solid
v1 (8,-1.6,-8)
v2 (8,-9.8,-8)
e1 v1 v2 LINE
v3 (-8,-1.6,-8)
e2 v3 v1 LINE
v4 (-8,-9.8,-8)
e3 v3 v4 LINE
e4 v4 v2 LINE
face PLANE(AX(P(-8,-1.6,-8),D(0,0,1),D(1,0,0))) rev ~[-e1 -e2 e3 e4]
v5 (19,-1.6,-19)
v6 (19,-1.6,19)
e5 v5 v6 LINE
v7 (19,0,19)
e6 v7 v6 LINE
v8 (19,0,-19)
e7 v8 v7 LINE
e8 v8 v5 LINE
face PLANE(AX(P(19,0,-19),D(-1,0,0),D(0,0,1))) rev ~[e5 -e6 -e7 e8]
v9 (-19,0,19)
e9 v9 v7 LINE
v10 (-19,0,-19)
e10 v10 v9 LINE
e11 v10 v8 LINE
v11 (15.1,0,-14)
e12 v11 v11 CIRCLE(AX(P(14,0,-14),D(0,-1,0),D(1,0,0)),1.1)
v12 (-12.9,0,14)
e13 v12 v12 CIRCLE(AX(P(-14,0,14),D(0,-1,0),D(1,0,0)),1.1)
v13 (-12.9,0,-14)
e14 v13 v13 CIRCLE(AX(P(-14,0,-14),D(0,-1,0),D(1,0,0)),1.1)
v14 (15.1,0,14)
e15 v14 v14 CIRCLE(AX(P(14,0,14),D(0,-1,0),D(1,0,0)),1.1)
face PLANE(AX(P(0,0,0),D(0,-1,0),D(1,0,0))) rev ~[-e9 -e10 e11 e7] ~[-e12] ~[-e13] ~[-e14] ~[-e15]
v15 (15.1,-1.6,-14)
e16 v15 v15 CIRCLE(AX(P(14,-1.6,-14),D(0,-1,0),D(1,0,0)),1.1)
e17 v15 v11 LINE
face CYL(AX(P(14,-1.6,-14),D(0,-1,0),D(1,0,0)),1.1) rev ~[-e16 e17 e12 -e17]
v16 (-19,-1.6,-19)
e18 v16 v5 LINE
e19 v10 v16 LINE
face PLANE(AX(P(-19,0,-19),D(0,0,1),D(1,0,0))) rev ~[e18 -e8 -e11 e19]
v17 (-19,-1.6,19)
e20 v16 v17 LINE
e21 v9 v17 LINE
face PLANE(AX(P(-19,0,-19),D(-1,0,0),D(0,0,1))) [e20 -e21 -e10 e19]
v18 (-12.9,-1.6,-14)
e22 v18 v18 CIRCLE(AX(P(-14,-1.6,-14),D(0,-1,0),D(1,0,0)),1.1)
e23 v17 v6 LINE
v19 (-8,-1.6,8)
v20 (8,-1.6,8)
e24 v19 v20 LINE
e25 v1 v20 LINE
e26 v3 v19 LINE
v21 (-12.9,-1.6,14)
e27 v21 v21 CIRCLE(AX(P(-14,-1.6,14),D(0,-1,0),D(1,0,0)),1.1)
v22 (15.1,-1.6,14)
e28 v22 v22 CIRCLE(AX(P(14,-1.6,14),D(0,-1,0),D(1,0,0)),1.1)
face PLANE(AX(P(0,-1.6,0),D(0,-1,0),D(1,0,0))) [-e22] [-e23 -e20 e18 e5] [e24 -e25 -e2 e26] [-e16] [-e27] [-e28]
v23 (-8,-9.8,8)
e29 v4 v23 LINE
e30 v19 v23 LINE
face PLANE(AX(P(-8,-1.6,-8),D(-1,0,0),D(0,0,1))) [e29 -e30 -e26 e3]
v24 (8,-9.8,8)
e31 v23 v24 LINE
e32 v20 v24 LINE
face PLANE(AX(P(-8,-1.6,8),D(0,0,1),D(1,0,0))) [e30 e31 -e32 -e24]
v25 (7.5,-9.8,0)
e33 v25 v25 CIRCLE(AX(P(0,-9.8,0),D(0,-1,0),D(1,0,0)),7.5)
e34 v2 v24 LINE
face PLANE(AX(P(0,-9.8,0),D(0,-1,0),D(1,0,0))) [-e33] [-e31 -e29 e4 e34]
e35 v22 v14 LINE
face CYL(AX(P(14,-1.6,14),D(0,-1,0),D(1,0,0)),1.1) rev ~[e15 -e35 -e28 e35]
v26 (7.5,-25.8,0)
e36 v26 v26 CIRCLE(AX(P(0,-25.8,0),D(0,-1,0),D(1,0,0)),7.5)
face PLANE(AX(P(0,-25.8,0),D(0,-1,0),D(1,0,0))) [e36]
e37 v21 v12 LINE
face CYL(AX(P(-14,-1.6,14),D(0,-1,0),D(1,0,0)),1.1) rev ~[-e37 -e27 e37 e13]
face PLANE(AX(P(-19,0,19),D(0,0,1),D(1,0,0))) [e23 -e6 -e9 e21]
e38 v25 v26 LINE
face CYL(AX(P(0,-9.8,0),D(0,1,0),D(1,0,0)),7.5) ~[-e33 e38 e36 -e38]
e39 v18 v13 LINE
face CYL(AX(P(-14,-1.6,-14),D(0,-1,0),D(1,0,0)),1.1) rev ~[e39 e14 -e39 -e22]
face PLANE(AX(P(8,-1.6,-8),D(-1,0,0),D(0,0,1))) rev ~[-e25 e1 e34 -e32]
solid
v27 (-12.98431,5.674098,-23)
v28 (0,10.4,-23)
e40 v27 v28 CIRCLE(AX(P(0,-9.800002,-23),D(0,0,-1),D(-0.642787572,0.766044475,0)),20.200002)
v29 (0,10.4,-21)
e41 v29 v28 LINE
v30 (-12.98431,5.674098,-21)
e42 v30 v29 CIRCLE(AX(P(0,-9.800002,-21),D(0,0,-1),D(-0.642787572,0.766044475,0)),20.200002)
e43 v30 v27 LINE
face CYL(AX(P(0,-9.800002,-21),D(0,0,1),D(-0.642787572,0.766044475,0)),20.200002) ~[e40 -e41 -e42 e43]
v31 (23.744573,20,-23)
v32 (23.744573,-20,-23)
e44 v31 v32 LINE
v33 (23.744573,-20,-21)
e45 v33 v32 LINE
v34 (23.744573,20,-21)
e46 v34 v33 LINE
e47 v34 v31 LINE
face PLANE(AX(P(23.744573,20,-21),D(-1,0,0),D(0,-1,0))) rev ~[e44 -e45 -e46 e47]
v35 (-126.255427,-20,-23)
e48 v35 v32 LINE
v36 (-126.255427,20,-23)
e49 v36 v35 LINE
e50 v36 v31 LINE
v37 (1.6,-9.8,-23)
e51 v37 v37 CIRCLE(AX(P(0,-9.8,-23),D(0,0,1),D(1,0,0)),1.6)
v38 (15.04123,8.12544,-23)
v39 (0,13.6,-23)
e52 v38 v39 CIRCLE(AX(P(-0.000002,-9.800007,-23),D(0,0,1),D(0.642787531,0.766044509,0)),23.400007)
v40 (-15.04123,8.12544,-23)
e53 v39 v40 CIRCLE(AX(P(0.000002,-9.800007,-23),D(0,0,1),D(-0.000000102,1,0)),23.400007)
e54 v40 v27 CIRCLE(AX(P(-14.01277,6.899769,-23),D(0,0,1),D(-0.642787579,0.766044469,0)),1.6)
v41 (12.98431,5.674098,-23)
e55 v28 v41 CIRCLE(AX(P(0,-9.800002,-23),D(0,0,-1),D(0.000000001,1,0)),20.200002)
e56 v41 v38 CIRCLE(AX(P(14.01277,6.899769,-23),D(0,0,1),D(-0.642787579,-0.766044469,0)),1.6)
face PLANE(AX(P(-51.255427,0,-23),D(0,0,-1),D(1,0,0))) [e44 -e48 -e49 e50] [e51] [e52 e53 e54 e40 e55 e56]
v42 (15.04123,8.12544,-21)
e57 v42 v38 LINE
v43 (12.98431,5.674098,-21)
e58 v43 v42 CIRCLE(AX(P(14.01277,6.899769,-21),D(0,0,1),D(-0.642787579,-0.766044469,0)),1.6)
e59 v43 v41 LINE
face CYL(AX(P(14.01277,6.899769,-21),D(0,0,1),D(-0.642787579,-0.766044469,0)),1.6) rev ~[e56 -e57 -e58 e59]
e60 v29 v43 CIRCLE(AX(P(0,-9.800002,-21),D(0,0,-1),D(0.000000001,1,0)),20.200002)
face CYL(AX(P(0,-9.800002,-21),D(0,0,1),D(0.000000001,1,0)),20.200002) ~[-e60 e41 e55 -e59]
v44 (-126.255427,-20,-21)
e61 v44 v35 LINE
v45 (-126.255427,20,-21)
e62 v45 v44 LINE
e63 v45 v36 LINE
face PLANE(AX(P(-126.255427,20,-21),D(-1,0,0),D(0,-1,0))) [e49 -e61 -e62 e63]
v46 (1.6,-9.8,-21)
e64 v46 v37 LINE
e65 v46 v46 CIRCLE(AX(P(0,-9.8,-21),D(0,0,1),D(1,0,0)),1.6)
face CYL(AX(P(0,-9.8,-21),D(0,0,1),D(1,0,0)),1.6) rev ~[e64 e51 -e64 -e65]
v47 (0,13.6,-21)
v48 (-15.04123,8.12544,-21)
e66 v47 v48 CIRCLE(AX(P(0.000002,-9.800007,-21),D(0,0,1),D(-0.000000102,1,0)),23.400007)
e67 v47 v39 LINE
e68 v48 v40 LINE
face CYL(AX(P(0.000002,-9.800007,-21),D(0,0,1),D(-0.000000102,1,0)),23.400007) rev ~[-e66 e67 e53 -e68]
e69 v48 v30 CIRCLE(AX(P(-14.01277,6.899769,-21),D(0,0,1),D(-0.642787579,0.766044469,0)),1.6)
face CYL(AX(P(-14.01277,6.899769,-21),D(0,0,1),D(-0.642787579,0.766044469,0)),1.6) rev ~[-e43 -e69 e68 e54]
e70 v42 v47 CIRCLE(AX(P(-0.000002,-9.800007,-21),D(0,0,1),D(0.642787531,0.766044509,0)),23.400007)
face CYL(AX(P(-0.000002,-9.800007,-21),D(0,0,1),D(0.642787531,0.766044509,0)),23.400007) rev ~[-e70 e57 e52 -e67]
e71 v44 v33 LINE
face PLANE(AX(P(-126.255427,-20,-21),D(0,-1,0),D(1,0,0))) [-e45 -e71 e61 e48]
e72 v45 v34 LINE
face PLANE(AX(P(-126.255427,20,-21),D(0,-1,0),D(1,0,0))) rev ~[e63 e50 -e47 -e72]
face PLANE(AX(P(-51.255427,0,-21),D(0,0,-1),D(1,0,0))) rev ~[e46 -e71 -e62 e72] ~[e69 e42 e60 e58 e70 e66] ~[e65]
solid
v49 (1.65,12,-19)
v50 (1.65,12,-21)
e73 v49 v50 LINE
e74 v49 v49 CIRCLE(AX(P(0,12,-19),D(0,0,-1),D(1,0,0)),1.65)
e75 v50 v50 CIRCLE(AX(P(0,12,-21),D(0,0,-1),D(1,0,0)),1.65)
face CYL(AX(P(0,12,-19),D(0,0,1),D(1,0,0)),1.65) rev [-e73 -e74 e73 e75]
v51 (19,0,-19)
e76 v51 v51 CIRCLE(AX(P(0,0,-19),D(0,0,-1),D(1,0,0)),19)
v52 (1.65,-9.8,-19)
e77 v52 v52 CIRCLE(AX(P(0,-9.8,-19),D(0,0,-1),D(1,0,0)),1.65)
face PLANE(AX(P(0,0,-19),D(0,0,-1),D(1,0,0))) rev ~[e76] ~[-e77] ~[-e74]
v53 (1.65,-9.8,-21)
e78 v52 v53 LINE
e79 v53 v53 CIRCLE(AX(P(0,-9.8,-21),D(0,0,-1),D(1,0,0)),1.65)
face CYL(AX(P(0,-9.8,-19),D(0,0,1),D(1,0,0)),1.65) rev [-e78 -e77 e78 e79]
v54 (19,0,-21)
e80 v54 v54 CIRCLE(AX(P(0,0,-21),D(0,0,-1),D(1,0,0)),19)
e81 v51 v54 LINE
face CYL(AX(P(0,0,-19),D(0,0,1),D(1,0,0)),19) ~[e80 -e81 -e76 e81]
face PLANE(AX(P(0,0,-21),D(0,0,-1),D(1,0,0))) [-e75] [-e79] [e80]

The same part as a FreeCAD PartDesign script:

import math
import FreeCAD as App
import Part
import Sketcher
Q = App.Units.Quantity


def add_polygon(sketch, points):
    """Adds a closed chain of lines whose ends are joined by coincident constraints."""
    first, n = sketch.GeometryCount, len(points)
    for a, b in zip(points, points[1:] + points[:1]):
        sketch.addGeometry(Part.LineSegment(App.Vector(*a, 0), App.Vector(*b, 0)), False)
    for i in range(n):
        sketch.addConstraint(Sketcher.Constraint("Coincident", first + i, 2, first + (i + 1) % n, 1))

doc = App.newDocument("Part")
body = doc.addObject("PartDesign::Body", "Body")

sketch1 = doc.addObject("Sketcher::SketchObject", "Sketch")
body.addObject(sketch1)
sketch1.AttachmentSupport = (doc.XZ_Plane, [""])
sketch1.MapMode = "FlatFace"
add_polygon(sketch1, [(-19, 19), (-19, -19), (19, -19), (19, 19)])
sketch1.addConstraint(Sketcher.Constraint("Vertical", 0))
sketch1.addConstraint(Sketcher.Constraint("Horizontal", 1))
sketch1.addConstraint(Sketcher.Constraint("Vertical", 2))
sketch1.addConstraint(Sketcher.Constraint("Horizontal", 3))
sketch1.addConstraint(Sketcher.Constraint("Symmetric", 0, 2, 2, 2, -1, 1))
sketch1.addConstraint(Sketcher.Constraint("Equal", 3, 0))
sketch1.addConstraint(Sketcher.Constraint("DistanceX", 1, 1, 1, 2, Q("38 mm")))
pad1 = doc.addObject("PartDesign::Pad", "Pad")
body.addObject(pad1)
pad1.Profile = sketch1
pad1.Length = 1.6

sketch2 = doc.addObject("Sketcher::SketchObject", "Sketch001")
body.addObject(sketch2)
sketch2.AttachmentSupport = (doc.XZ_Plane, [""])
sketch2.MapMode = "FlatFace"
sketch2.AttachmentOffset = App.Placement(App.Vector(0, 0, 1.6), App.Rotation())
sketch2.addGeometry(Part.Circle(App.Vector(-14, 14, 0), App.Vector(0, 0, 1), 1.1), False)
sketch2.addGeometry(Part.Circle(App.Vector(14, 14, 0), App.Vector(0, 0, 1), 1.1), False)
sketch2.addGeometry(Part.Circle(App.Vector(-14, -14, 0), App.Vector(0, 0, 1), 1.1), False)
sketch2.addGeometry(Part.Circle(App.Vector(14, -14, 0), App.Vector(0, 0, 1), 1.1), False)
sketch2.addConstraint(Sketcher.Constraint("Equal", 0, 1))
sketch2.addConstraint(Sketcher.Constraint("Equal", 1, 2))
sketch2.addConstraint(Sketcher.Constraint("Equal", 2, 3))
sketch2.addConstraint(Sketcher.Constraint("Symmetric", 1, 3, 2, 3, -1, 1))
sketch2.addConstraint(Sketcher.Constraint("Symmetric", 0, 3, 3, 3, -1, 1))
sketch2.addConstraint(Sketcher.Constraint("Symmetric", 0, 3, 1, 3, -2))
sketch2.addConstraint(Sketcher.Constraint("Diameter", 0, Q("2.2 mm")))
sketch2.addConstraint(Sketcher.Constraint("DistanceX", 0, 3, -1, 1, Q("14 mm")))
sketch2.addConstraint(Sketcher.Constraint("DistanceY", -1, 1, 0, 3, Q("14 mm")))
pocket1 = doc.addObject("PartDesign::Pocket", "Pocket")
body.addObject(pocket1)
pocket1.Profile = sketch2
pocket1.Type = "ThroughAll"

sketch3 = doc.addObject("Sketcher::SketchObject", "Sketch002")
body.addObject(sketch3)
sketch3.AttachmentSupport = (doc.XZ_Plane, [""])
sketch3.MapMode = "FlatFace"
sketch3.AttachmentOffset = App.Placement(App.Vector(0, 0, 1.6), App.Rotation())
add_polygon(sketch3, [(-8, 8), (-8, -8), (8, -8), (8, 8)])
sketch3.addConstraint(Sketcher.Constraint("Vertical", 0))
sketch3.addConstraint(Sketcher.Constraint("Horizontal", 1))
sketch3.addConstraint(Sketcher.Constraint("Vertical", 2))
sketch3.addConstraint(Sketcher.Constraint("Horizontal", 3))
sketch3.addConstraint(Sketcher.Constraint("Symmetric", 0, 2, 2, 2, -1, 1))
sketch3.addConstraint(Sketcher.Constraint("Equal", 3, 0))
sketch3.addConstraint(Sketcher.Constraint("DistanceX", 1, 1, 1, 2, Q("16 mm")))
pad2 = doc.addObject("PartDesign::Pad", "Pad001")
body.addObject(pad2)
pad2.Profile = sketch3
pad2.Length = 8.2

sketch4 = doc.addObject("Sketcher::SketchObject", "Sketch003")
body.addObject(sketch4)
sketch4.AttachmentSupport = (doc.XZ_Plane, [""])
sketch4.MapMode = "FlatFace"
sketch4.AttachmentOffset = App.Placement(App.Vector(0, 0, 9.8), App.Rotation())
sketch4.addGeometry(Part.Circle(App.Vector(0, 0, 0), App.Vector(0, 0, 1), 8), False)
sketch4.addConstraint(Sketcher.Constraint("Coincident", 0, 3, -1, 1))
sketch4.addConstraint(Sketcher.Constraint("Diameter", 0, Q("15 mm")))
pad3 = doc.addObject("PartDesign::Pad", "Pad002")
body.addObject(pad3)
pad3.Profile = sketch4
pad3.Length = 16
body2 = doc.addObject("PartDesign::Body", "Body001")

sketch5 = doc.addObject("Sketcher::SketchObject", "Sketch004")
body2.addObject(sketch5)
sketch5.AttachmentSupport = (doc.getObject("XY_Plane001"), [""])
sketch5.MapMode = "FlatFace"
sketch5.AttachmentOffset = App.Placement(App.Vector(0, 0, -19), App.Rotation())
sketch5.addGeometry(Part.Circle(App.Vector(0, 0, 0), App.Vector(0, 0, 1), 19), False)
sketch5.addGeometry(Part.Circle(App.Vector(0, 12, 0), App.Vector(0, 0, 1), 1.6), False)
sketch5.addGeometry(Part.Circle(App.Vector(0, -9.8, 0), App.Vector(0, 0, 1), 1.6), False)
sketch5.addConstraint(Sketcher.Constraint("Coincident", 0, 3, -1, 1))
sketch5.addConstraint(Sketcher.Constraint("Equal", 1, 2))
sketch5.addConstraint(Sketcher.Constraint("PointOnObject", 1, 3, -2))
sketch5.addConstraint(Sketcher.Constraint("PointOnObject", 2, 3, -2))
sketch5.addConstraint(Sketcher.Constraint("Diameter", 0, Q("38 mm")))
sketch5.addConstraint(Sketcher.Constraint("Diameter", 1, Q("3.3 mm")))
sketch5.addConstraint(Sketcher.Constraint("DistanceY", -1, 1, 1, 3, Q("12 mm")))
sketch5.addConstraint(Sketcher.Constraint("DistanceY", 2, 3, -1, 1, Q("9.8 mm")))
pad4 = doc.addObject("PartDesign::Pad", "Pad003")
body2.addObject(pad4)
pad4.Profile = sketch5
pad4.Length = 2
pad4.Reversed = True
body3 = doc.addObject("PartDesign::Body", "Body002")
doc.recompute()

body3.BaseFeature = body2
doc.recompute()
body4 = doc.addObject("PartDesign::Body", "Body003")

sketch6 = doc.addObject("Sketcher::SketchObject", "Sketch005")
body4.addObject(sketch6)
sketch6.AttachmentSupport = (doc.getObject("XY_Plane003"), [""])
sketch6.MapMode = "FlatFace"
sketch6.AttachmentOffset = App.Placement(App.Vector(0, 0, -21), App.Rotation())
add_polygon(sketch6, [(-126, -20), (-126, 20), (24, 20), (24, -20)])
sketch6.addConstraint(Sketcher.Constraint("Vertical", 0))
sketch6.addConstraint(Sketcher.Constraint("Horizontal", 1))
sketch6.addConstraint(Sketcher.Constraint("Vertical", 2))
sketch6.addConstraint(Sketcher.Constraint("Horizontal", 3))
sketch6.addConstraint(Sketcher.Constraint("DistanceX", 1, 1, 1, 2, Q("150 mm")))
sketch6.addConstraint(Sketcher.Constraint("DistanceY", 0, 1, 0, 2, Q("40 mm")))
sketch6.addConstraint(Sketcher.Constraint("DistanceY", -1, 1, 0, 2, Q("20 mm")))
sketch6.addConstraint(Sketcher.Constraint("DistanceX", 0, 2, -1, 1, Q("126.255427 mm")))
pad5 = doc.addObject("PartDesign::Pad", "Pad004")
body4.addObject(pad5)
pad5.Profile = sketch6
pad5.Length = 2
pad5.Reversed = True

sketch7 = doc.addObject("Sketcher::SketchObject", "Sketch006")
body4.addObject(sketch7)
sketch7.AttachmentSupport = (doc.getObject("XY_Plane003"), [""])
sketch7.MapMode = "FlatFace"
sketch7.AttachmentOffset = App.Placement(App.Vector(0, 0, -21), App.Rotation())
sketch7.addGeometry(Part.Circle(App.Vector(0, -9.8, 0), App.Vector(0, 0, 1), 1.6), False)
sketch7.addGeometry(Part.ArcOfCircle(Part.Circle(App.Vector(0, -9.8, 0), App.Vector(0, 0, 1), 23.4), math.radians(90), math.radians(130)), False)
sketch7.addGeometry(Part.ArcOfCircle(Part.Circle(App.Vector(-14, 6.9, 0), App.Vector(0, 0, 1), 1.6), math.radians(130), math.radians(310)), False)
sketch7.addGeometry(Part.ArcOfCircle(Part.Circle(App.Vector(0, -9.8, 0), App.Vector(0, 0, 1), 20.2), math.radians(90), math.radians(130)), False)
sketch7.addGeometry(Part.ArcOfCircle(Part.Circle(App.Vector(0, -9.8, 0), App.Vector(0, 0, 1), 20.2), math.radians(50), math.radians(90)), False)
sketch7.addGeometry(Part.ArcOfCircle(Part.Circle(App.Vector(14, 6.9, 0), App.Vector(0, 0, 1), 1.6), math.radians(-130), math.radians(50)), False)
sketch7.addGeometry(Part.ArcOfCircle(Part.Circle(App.Vector(0, -9.8, 0), App.Vector(0, 0, 1), 23.4), math.radians(50), math.radians(90)), False)
sketch7.addConstraint(Sketcher.Constraint("Tangent", 1, 2, 2, 1))
sketch7.addConstraint(Sketcher.Constraint("Tangent", 2, 2, 3, 2))
sketch7.addConstraint(Sketcher.Constraint("Tangent", 3, 1, 4, 2))
sketch7.addConstraint(Sketcher.Constraint("Tangent", 4, 1, 5, 1))
sketch7.addConstraint(Sketcher.Constraint("Tangent", 5, 2, 6, 1))
sketch7.addConstraint(Sketcher.Constraint("Tangent", 6, 2, 1, 1))
sketch7.addConstraint(Sketcher.Constraint("Coincident", 1, 3, 0, 3))
sketch7.addConstraint(Sketcher.Constraint("Coincident", 3, 3, 0, 3))
sketch7.addConstraint(Sketcher.Constraint("Equal", 0, 2))
sketch7.addConstraint(Sketcher.Constraint("Equal", 3, 4))
sketch7.addConstraint(Sketcher.Constraint("Equal", 2, 5))
sketch7.addConstraint(Sketcher.Constraint("Symmetric", 2, 3, 5, 3, -2))
sketch7.addConstraint(Sketcher.Constraint("PointOnObject", 3, 1, -2))
sketch7.addConstraint(Sketcher.Constraint("PointOnObject", 6, 2, -2))
sketch7.addConstraint(Sketcher.Constraint("Diameter", 0, Q("3.2 mm")))
sketch7.addConstraint(Sketcher.Constraint("Radius", 3, Q("20.200002 mm")))
sketch7.addConstraint(Sketcher.Constraint("DistanceY", 0, 3, -1, 1, Q("9.8 mm")))
sketch7.addConstraint(Sketcher.Constraint("DistanceY", -1, 1, 4, 1, Q("5.674098 mm")))
pocket2 = doc.addObject("PartDesign::Pocket", "Pocket001")
body4.addObject(pocket2)
pocket2.Profile = sketch7
pocket2.Type = "ThroughAll"
body2.Visibility = False

doc.recompute()
